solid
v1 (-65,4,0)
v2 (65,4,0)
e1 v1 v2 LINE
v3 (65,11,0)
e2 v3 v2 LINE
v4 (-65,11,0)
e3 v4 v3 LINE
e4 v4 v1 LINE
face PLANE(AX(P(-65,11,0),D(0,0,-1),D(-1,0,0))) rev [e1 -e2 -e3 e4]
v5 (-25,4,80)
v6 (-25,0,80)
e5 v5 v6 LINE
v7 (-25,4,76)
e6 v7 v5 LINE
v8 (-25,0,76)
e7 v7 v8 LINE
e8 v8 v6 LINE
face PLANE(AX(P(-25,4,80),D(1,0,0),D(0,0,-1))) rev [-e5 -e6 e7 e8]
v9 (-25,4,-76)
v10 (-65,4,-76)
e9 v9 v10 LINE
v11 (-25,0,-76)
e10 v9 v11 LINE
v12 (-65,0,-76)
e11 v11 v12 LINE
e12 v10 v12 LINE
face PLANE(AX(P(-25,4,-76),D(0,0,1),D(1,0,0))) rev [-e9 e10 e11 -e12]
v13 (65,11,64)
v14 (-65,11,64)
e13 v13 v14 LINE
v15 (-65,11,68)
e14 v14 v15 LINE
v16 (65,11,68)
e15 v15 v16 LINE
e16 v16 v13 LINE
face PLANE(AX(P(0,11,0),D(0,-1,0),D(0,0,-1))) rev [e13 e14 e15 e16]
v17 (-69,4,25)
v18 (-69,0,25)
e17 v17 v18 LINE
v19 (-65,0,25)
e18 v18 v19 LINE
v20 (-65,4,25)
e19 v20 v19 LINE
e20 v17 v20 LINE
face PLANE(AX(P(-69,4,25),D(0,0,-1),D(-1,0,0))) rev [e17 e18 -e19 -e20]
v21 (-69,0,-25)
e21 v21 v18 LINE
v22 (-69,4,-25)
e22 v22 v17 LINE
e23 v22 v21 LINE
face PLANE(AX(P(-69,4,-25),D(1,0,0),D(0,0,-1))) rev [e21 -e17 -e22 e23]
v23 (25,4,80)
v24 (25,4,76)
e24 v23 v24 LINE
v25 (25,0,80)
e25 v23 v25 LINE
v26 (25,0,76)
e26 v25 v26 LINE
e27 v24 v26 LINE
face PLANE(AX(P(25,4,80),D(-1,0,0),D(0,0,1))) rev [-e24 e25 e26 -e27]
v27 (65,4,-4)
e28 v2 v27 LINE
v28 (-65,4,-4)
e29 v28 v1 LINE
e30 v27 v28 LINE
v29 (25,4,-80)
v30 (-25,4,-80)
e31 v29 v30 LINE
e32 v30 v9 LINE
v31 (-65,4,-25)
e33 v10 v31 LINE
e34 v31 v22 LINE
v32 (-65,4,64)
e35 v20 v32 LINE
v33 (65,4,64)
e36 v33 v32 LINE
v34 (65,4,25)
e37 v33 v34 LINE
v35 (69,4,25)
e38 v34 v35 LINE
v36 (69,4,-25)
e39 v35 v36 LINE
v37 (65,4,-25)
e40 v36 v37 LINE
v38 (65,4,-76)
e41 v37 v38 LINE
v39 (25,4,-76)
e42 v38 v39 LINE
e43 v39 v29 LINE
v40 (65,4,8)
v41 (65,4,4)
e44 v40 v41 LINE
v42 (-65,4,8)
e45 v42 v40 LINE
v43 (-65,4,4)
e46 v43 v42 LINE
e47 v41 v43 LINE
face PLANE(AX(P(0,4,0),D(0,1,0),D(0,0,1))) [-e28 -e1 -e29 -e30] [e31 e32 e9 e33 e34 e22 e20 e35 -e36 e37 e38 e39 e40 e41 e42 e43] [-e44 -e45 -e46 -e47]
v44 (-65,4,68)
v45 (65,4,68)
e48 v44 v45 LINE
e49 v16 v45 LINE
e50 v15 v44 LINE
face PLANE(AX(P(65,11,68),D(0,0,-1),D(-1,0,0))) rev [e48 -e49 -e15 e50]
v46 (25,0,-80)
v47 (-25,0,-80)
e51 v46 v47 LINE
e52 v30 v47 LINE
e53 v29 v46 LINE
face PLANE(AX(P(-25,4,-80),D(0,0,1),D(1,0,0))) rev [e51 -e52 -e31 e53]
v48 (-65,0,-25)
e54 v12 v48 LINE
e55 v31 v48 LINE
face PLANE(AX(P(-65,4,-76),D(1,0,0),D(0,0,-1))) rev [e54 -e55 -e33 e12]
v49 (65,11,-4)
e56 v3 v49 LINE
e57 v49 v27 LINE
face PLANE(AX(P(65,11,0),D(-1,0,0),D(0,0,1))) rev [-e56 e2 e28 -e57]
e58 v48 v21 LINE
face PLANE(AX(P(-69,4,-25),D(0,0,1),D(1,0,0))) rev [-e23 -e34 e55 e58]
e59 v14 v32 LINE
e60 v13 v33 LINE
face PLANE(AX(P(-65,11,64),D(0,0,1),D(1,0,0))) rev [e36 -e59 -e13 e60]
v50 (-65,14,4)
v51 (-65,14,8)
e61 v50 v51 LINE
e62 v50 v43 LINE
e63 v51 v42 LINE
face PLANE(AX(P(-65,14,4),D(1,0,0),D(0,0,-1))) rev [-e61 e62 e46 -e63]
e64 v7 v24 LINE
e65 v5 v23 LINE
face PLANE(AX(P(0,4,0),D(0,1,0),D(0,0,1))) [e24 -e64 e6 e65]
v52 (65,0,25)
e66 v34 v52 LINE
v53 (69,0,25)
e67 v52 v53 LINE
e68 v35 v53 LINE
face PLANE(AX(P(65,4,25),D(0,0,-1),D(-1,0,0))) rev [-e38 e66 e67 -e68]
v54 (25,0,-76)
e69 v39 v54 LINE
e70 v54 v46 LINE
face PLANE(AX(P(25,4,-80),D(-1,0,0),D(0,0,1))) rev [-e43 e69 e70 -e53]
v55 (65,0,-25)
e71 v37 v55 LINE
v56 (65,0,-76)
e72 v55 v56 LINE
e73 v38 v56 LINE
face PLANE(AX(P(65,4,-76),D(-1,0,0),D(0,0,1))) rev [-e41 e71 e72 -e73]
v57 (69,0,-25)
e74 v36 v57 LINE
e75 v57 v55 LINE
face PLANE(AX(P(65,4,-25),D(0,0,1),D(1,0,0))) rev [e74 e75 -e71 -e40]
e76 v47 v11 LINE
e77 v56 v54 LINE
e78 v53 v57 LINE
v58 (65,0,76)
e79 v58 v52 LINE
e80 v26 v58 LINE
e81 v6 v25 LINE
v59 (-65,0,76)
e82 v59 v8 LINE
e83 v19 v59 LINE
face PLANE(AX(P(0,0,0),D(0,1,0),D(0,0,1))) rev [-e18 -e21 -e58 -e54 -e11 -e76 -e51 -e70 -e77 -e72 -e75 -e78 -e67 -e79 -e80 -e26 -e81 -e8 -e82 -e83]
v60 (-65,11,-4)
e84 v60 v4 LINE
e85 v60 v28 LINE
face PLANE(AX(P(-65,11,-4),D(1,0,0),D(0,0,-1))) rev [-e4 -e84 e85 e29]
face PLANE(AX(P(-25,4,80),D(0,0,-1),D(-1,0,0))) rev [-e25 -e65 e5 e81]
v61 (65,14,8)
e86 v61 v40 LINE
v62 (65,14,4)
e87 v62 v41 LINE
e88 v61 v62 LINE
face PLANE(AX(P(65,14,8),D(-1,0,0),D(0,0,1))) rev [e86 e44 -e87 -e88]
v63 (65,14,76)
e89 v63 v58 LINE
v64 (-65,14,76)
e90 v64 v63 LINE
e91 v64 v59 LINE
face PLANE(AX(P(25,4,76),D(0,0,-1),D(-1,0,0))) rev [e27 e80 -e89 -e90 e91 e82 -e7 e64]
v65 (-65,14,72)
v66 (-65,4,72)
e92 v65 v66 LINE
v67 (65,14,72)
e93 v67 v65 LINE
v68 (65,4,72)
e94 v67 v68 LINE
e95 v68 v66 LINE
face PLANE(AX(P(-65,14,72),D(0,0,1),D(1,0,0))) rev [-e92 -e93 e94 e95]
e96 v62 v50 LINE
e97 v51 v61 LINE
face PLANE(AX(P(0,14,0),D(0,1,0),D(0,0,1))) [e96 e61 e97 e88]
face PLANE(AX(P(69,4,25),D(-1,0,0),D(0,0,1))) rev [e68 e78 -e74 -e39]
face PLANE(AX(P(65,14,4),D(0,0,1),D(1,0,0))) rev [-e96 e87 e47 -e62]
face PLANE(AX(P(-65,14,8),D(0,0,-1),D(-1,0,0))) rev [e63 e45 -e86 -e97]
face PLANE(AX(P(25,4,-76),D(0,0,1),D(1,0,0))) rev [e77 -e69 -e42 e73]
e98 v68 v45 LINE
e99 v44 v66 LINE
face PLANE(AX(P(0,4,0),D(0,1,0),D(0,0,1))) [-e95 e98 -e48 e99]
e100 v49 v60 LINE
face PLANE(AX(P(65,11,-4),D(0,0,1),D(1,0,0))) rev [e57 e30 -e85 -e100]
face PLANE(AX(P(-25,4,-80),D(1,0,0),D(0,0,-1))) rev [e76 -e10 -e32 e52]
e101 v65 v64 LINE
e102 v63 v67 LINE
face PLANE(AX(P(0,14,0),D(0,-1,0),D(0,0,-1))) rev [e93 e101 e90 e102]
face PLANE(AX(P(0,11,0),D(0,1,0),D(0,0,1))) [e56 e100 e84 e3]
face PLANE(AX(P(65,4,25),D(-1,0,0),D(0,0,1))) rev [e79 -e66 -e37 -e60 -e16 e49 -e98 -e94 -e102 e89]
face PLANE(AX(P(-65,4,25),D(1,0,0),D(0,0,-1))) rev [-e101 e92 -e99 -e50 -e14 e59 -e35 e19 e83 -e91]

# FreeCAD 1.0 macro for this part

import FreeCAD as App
import Part
import Sketcher
Q = App.Units.Quantity

doc = App.newDocument("Part")
body = doc.addObject("PartDesign::Body", "Body")

sketch1 = doc.addObject("Sketcher::SketchObject", "Sketch")
body.addObject(sketch1)
sketch1.AttachmentSupport = (doc.XZ_Plane, [""])
sketch1.MapMode = "FlatFace"
sketch1.addGeometry([
    Part.LineSegment(App.Vector(25, -80, 0), App.Vector(-25, -80, 0)),
    Part.LineSegment(App.Vector(-25, -80, 0), App.Vector(-25, -76, 0)),
    Part.LineSegment(App.Vector(-25, -76, 0), App.Vector(-65, -76, 0)),
    Part.LineSegment(App.Vector(-65, -76, 0), App.Vector(-65, -25, 0)),
    Part.LineSegment(App.Vector(-65, -25, 0), App.Vector(-69, -25, 0)),
    Part.LineSegment(App.Vector(-69, -25, 0), App.Vector(-69, 25, 0)),
    Part.LineSegment(App.Vector(-69, 25, 0), App.Vector(-65, 25, 0)),
    Part.LineSegment(App.Vector(-65, 25, 0), App.Vector(-65, 76, 0)),
    Part.LineSegment(App.Vector(-65, 76, 0), App.Vector(-25, 76, 0)),
    Part.LineSegment(App.Vector(-25, 76, 0), App.Vector(-25, 80, 0)),
    Part.LineSegment(App.Vector(-25, 80, 0), App.Vector(25, 80, 0)),
    Part.LineSegment(App.Vector(25, 80, 0), App.Vector(25, 76, 0)),
    Part.LineSegment(App.Vector(25, 76, 0), App.Vector(65, 76, 0)),
    Part.LineSegment(App.Vector(65, 76, 0), App.Vector(65, 25, 0)),
    Part.LineSegment(App.Vector(65, 25, 0), App.Vector(69, 25, 0)),
    Part.LineSegment(App.Vector(69, 25, 0), App.Vector(69, -25, 0)),
    Part.LineSegment(App.Vector(69, -25, 0), App.Vector(65, -25, 0)),
    Part.LineSegment(App.Vector(65, -25, 0), App.Vector(65, -76, 0)),
    Part.LineSegment(App.Vector(65, -76, 0), App.Vector(25, -76, 0)),
    Part.LineSegment(App.Vector(25, -76, 0), App.Vector(25, -80, 0)),
], False)
sketch1.addConstraint([
    Sketcher.Constraint("Coincident", 0, 2, 1, 1),
    Sketcher.Constraint("Coincident", 1, 2, 2, 1),
    Sketcher.Constraint("Coincident", 2, 2, 3, 1),
    Sketcher.Constraint("Coincident", 3, 2, 4, 1),
    Sketcher.Constraint("Coincident", 4, 2, 5, 1),
    Sketcher.Constraint("Coincident", 5, 2, 6, 1),
    Sketcher.Constraint("Coincident", 6, 2, 7, 1),
    Sketcher.Constraint("Coincident", 7, 2, 8, 1),
    Sketcher.Constraint("Coincident", 8, 2, 9, 1),
    Sketcher.Constraint("Coincident", 9, 2, 10, 1),
    Sketcher.Constraint("Coincident", 10, 2, 11, 1),
    Sketcher.Constraint("Coincident", 11, 2, 12, 1),
    Sketcher.Constraint("Coincident", 12, 2, 13, 1),
    Sketcher.Constraint("Coincident", 13, 2, 14, 1),
    Sketcher.Constraint("Coincident", 14, 2, 15, 1),
    Sketcher.Constraint("Coincident", 15, 2, 16, 1),
    Sketcher.Constraint("Coincident", 16, 2, 17, 1),
    Sketcher.Constraint("Coincident", 17, 2, 18, 1),
    Sketcher.Constraint("Coincident", 18, 2, 19, 1),
    Sketcher.Constraint("Coincident", 19, 2, 0, 1),
    Sketcher.Constraint("Horizontal", 0),
    Sketcher.Constraint("Vertical", 1),
    Sketcher.Constraint("Horizontal", 2),
    Sketcher.Constraint("Vertical", 3),
    Sketcher.Constraint("Horizontal", 4),
    Sketcher.Constraint("Vertical", 5),
    Sketcher.Constraint("Horizontal", 6),
    Sketcher.Constraint("Vertical", 7),
    Sketcher.Constraint("Horizontal", 8),
    Sketcher.Constraint("Vertical", 9),
    Sketcher.Constraint("Horizontal", 10),
    Sketcher.Constraint("Vertical", 11),
    Sketcher.Constraint("Horizontal", 12),
    Sketcher.Constraint("Vertical", 13),
    Sketcher.Constraint("Horizontal", 14),
    Sketcher.Constraint("Vertical", 15),
    Sketcher.Constraint("Horizontal", 16),
    Sketcher.Constraint("Vertical", 17),
    Sketcher.Constraint("Horizontal", 18),
    Sketcher.Constraint("Vertical", 19),
    Sketcher.Constraint("Symmetric", 0, 2, 10, 2, -1, 1),
    Sketcher.Constraint("Symmetric", 2, 2, 12, 2, -1, 1),
    Sketcher.Constraint("Symmetric", 4, 2, 14, 2, -1, 1),
    Sketcher.Constraint("Symmetric", 6, 2, 16, 2, -1, 1),
    Sketcher.Constraint("Symmetric", 8, 2, 18, 2, -1, 1),
    Sketcher.Constraint("Symmetric", 8, 2, 11, 2, -2),
    Sketcher.Constraint("Symmetric", 6, 2, 13, 2, -2),
    Sketcher.Constraint("Equal", 16, 1),
    Sketcher.Constraint("Equal", 10, 5),
    Sketcher.Constraint("DistanceX", 0, 2, 0, 1, Q("50 mm")),
    Sketcher.Constraint("DistanceX", 2, 2, 2, 1, Q("40 mm")),
    Sketcher.Constraint("DistanceX", 4, 2, 4, 1, Q("4 mm")),
    Sketcher.Constraint("DistanceY", 3, 1, 3, 2, Q("51 mm")),
])
pad1 = doc.addObject("PartDesign::Pad", "Pad")
body.addObject(pad1)
pad1.Profile = sketch1
pad1.Length = 4
pad1.Reversed = True

sketch2 = doc.addObject("Sketcher::SketchObject", "Sketch001")
body.addObject(sketch2)
sketch2.AttachmentSupport = (doc.XZ_Plane, [""])
sketch2.MapMode = "FlatFace"
sketch2.AttachmentOffset = App.Placement(App.Vector(0, 0, -4), App.Rotation())
sketch2.addGeometry([
    Part.LineSegment(App.Vector(-65, 72, 0), App.Vector(-65, 76, 0)),
    Part.LineSegment(App.Vector(-65, 76, 0), App.Vector(65, 76, 0)),
    Part.LineSegment(App.Vector(65, 76, 0), App.Vector(65, 72, 0)),
    Part.LineSegment(App.Vector(65, 72, 0), App.Vector(-65, 72, 0)),
], False)
sketch2.addConstraint([
    Sketcher.Constraint("Coincident", 0, 2, 1, 1),
    Sketcher.Constraint("Coincident", 1, 2, 2, 1),
    Sketcher.Constraint("Coincident", 2, 2, 3, 1),
    Sketcher.Constraint("Coincident", 3, 2, 0, 1),
    Sketcher.Constraint("Vertical", 0),
    Sketcher.Constraint("Horizontal", 1),
    Sketcher.Constraint("Vertical", 2),
    Sketcher.Constraint("Horizontal", 3),
    Sketcher.Constraint("DistanceX", 1, 1, 1, 2, Q("130 mm")),
    Sketcher.Constraint("DistanceY", 0, 1, 0, 2, Q("4 mm")),
    Sketcher.Constraint("DistanceX", 0, 2, -1, 1, Q("65 mm")),
    Sketcher.Constraint("DistanceY", -1, 1, 0, 2, Q("76 mm")),
])
pad2 = doc.addObject("PartDesign::Pad", "Pad001")
body.addObject(pad2)
pad2.Profile = sketch2
pad2.Length = 10
pad2.Reversed = True

sketch3 = doc.addObject("Sketcher::SketchObject", "Sketch002")
body.addObject(sketch3)
sketch3.AttachmentSupport = (doc.XZ_Plane, [""])
sketch3.MapMode = "FlatFace"
sketch3.AttachmentOffset = App.Placement(App.Vector(0, 0, -4), App.Rotation())
sketch3.addGeometry([
    Part.LineSegment(App.Vector(-65, 64, 0), App.Vector(-65, 68, 0)),
    Part.LineSegment(App.Vector(-65, 68, 0), App.Vector(65, 68, 0)),
    Part.LineSegment(App.Vector(65, 68, 0), App.Vector(65, 64, 0)),
    Part.LineSegment(App.Vector(65, 64, 0), App.Vector(-65, 64, 0)),
], False)
sketch3.addConstraint([
    Sketcher.Constraint("Coincident", 0, 2, 1, 1),
    Sketcher.Constraint("Coincident", 1, 2, 2, 1),
    Sketcher.Constraint("Coincident", 2, 2, 3, 1),
    Sketcher.Constraint("Coincident", 3, 2, 0, 1),
    Sketcher.Constraint("Vertical", 0),
    Sketcher.Constraint("Horizontal", 1),
    Sketcher.Constraint("Vertical", 2),
    Sketcher.Constraint("Horizontal", 3),
    Sketcher.Constraint("DistanceX", 1, 1, 1, 2, Q("130 mm")),
    Sketcher.Constraint("DistanceY", 0, 1, 0, 2, Q("4 mm")),
    Sketcher.Constraint("DistanceX", 0, 2, -1, 1, Q("65 mm")),
    Sketcher.Constraint("DistanceY", -1, 1, 0, 2, Q("68 mm")),
])
pad3 = doc.addObject("PartDesign::Pad", "Pad002")
body.addObject(pad3)
pad3.Profile = sketch3
pad3.Length = 7
pad3.Reversed = True

sketch4 = doc.addObject("Sketcher::SketchObject", "Sketch003")
body.addObject(sketch4)
sketch4.AttachmentSupport = (doc.XZ_Plane, [""])
sketch4.MapMode = "FlatFace"
sketch4.AttachmentOffset = App.Placement(App.Vector(0, 0, -4), App.Rotation())
sketch4.addGeometry([
    Part.LineSegment(App.Vector(-65, 4, 0), App.Vector(-65, 8, 0)),
    Part.LineSegment(App.Vector(-65, 8, 0), App.Vector(65, 8, 0)),
    Part.LineSegment(App.Vector(65, 8, 0), App.Vector(65, 4, 0)),
    Part.LineSegment(App.Vector(65, 4, 0), App.Vector(-65, 4, 0)),
], False)
sketch4.addConstraint([
    Sketcher.Constraint("Coincident", 0, 2, 1, 1),
    Sketcher.Constraint("Coincident", 1, 2, 2, 1),
    Sketcher.Constraint("Coincident", 2, 2, 3, 1),
    Sketcher.Constraint("Coincident", 3, 2, 0, 1),
    Sketcher.Constraint("Vertical", 0),
    Sketcher.Constraint("Horizontal", 1),
    Sketcher.Constraint("Vertical", 2),
    Sketcher.Constraint("Horizontal", 3),
    Sketcher.Constraint("DistanceX", 1, 1, 1, 2, Q("130 mm")),
    Sketcher.Constraint("DistanceY", 0, 1, 0, 2, Q("4 mm")),
    Sketcher.Constraint("DistanceX", 0, 2, -1, 1, Q("65 mm")),
    Sketcher.Constraint("DistanceY", -1, 1, 0, 2, Q("8 mm")),
])
pad4 = doc.addObject("PartDesign::Pad", "Pad003")
body.addObject(pad4)
pad4.Profile = sketch4
pad4.Length = 10
pad4.Reversed = True

sketch5 = doc.addObject("Sketcher::SketchObject", "Sketch004")
body.addObject(sketch5)
sketch5.AttachmentSupport = (doc.XZ_Plane, [""])
sketch5.MapMode = "FlatFace"
sketch5.AttachmentOffset = App.Placement(App.Vector(0, 0, -4), App.Rotation())
sketch5.addGeometry([
    Part.LineSegment(App.Vector(-65, -4, 0), App.Vector(-65, 0, 0)),
    Part.LineSegment(App.Vector(-65, 0, 0), App.Vector(65, 0, 0)),
    Part.LineSegment(App.Vector(65, 0, 0), App.Vector(65, -4, 0)),
    Part.LineSegment(App.Vector(65, -4, 0), App.Vector(-65, -4, 0)),
], False)
sketch5.addConstraint([
    Sketcher.Constraint("Coincident", 0, 2, 1, 1),
    Sketcher.Constraint("Coincident", 1, 2, 2, 1),
    Sketcher.Constraint("Coincident", 2, 2, 3, 1),
    Sketcher.Constraint("Coincident", 3, 2, 0, 1),
    Sketcher.Constraint("Vertical", 0),
    Sketcher.Constraint("Horizontal", 1),
    Sketcher.Constraint("Vertical", 2),
    Sketcher.Constraint("Horizontal", 3),
    Sketcher.Constraint("Symmetric", 0, 2, 1, 2, -1, 1),
    Sketcher.Constraint("DistanceX", 1, 1, 1, 2, Q("130 mm")),
    Sketcher.Constraint("DistanceY", 0, 1, 0, 2, Q("4 mm")),
])
pad5 = doc.addObject("PartDesign::Pad", "Pad004")
body.addObject(pad5)
pad5.Profile = sketch5
pad5.Length = 7
pad5.Reversed = True

doc.recompute()
